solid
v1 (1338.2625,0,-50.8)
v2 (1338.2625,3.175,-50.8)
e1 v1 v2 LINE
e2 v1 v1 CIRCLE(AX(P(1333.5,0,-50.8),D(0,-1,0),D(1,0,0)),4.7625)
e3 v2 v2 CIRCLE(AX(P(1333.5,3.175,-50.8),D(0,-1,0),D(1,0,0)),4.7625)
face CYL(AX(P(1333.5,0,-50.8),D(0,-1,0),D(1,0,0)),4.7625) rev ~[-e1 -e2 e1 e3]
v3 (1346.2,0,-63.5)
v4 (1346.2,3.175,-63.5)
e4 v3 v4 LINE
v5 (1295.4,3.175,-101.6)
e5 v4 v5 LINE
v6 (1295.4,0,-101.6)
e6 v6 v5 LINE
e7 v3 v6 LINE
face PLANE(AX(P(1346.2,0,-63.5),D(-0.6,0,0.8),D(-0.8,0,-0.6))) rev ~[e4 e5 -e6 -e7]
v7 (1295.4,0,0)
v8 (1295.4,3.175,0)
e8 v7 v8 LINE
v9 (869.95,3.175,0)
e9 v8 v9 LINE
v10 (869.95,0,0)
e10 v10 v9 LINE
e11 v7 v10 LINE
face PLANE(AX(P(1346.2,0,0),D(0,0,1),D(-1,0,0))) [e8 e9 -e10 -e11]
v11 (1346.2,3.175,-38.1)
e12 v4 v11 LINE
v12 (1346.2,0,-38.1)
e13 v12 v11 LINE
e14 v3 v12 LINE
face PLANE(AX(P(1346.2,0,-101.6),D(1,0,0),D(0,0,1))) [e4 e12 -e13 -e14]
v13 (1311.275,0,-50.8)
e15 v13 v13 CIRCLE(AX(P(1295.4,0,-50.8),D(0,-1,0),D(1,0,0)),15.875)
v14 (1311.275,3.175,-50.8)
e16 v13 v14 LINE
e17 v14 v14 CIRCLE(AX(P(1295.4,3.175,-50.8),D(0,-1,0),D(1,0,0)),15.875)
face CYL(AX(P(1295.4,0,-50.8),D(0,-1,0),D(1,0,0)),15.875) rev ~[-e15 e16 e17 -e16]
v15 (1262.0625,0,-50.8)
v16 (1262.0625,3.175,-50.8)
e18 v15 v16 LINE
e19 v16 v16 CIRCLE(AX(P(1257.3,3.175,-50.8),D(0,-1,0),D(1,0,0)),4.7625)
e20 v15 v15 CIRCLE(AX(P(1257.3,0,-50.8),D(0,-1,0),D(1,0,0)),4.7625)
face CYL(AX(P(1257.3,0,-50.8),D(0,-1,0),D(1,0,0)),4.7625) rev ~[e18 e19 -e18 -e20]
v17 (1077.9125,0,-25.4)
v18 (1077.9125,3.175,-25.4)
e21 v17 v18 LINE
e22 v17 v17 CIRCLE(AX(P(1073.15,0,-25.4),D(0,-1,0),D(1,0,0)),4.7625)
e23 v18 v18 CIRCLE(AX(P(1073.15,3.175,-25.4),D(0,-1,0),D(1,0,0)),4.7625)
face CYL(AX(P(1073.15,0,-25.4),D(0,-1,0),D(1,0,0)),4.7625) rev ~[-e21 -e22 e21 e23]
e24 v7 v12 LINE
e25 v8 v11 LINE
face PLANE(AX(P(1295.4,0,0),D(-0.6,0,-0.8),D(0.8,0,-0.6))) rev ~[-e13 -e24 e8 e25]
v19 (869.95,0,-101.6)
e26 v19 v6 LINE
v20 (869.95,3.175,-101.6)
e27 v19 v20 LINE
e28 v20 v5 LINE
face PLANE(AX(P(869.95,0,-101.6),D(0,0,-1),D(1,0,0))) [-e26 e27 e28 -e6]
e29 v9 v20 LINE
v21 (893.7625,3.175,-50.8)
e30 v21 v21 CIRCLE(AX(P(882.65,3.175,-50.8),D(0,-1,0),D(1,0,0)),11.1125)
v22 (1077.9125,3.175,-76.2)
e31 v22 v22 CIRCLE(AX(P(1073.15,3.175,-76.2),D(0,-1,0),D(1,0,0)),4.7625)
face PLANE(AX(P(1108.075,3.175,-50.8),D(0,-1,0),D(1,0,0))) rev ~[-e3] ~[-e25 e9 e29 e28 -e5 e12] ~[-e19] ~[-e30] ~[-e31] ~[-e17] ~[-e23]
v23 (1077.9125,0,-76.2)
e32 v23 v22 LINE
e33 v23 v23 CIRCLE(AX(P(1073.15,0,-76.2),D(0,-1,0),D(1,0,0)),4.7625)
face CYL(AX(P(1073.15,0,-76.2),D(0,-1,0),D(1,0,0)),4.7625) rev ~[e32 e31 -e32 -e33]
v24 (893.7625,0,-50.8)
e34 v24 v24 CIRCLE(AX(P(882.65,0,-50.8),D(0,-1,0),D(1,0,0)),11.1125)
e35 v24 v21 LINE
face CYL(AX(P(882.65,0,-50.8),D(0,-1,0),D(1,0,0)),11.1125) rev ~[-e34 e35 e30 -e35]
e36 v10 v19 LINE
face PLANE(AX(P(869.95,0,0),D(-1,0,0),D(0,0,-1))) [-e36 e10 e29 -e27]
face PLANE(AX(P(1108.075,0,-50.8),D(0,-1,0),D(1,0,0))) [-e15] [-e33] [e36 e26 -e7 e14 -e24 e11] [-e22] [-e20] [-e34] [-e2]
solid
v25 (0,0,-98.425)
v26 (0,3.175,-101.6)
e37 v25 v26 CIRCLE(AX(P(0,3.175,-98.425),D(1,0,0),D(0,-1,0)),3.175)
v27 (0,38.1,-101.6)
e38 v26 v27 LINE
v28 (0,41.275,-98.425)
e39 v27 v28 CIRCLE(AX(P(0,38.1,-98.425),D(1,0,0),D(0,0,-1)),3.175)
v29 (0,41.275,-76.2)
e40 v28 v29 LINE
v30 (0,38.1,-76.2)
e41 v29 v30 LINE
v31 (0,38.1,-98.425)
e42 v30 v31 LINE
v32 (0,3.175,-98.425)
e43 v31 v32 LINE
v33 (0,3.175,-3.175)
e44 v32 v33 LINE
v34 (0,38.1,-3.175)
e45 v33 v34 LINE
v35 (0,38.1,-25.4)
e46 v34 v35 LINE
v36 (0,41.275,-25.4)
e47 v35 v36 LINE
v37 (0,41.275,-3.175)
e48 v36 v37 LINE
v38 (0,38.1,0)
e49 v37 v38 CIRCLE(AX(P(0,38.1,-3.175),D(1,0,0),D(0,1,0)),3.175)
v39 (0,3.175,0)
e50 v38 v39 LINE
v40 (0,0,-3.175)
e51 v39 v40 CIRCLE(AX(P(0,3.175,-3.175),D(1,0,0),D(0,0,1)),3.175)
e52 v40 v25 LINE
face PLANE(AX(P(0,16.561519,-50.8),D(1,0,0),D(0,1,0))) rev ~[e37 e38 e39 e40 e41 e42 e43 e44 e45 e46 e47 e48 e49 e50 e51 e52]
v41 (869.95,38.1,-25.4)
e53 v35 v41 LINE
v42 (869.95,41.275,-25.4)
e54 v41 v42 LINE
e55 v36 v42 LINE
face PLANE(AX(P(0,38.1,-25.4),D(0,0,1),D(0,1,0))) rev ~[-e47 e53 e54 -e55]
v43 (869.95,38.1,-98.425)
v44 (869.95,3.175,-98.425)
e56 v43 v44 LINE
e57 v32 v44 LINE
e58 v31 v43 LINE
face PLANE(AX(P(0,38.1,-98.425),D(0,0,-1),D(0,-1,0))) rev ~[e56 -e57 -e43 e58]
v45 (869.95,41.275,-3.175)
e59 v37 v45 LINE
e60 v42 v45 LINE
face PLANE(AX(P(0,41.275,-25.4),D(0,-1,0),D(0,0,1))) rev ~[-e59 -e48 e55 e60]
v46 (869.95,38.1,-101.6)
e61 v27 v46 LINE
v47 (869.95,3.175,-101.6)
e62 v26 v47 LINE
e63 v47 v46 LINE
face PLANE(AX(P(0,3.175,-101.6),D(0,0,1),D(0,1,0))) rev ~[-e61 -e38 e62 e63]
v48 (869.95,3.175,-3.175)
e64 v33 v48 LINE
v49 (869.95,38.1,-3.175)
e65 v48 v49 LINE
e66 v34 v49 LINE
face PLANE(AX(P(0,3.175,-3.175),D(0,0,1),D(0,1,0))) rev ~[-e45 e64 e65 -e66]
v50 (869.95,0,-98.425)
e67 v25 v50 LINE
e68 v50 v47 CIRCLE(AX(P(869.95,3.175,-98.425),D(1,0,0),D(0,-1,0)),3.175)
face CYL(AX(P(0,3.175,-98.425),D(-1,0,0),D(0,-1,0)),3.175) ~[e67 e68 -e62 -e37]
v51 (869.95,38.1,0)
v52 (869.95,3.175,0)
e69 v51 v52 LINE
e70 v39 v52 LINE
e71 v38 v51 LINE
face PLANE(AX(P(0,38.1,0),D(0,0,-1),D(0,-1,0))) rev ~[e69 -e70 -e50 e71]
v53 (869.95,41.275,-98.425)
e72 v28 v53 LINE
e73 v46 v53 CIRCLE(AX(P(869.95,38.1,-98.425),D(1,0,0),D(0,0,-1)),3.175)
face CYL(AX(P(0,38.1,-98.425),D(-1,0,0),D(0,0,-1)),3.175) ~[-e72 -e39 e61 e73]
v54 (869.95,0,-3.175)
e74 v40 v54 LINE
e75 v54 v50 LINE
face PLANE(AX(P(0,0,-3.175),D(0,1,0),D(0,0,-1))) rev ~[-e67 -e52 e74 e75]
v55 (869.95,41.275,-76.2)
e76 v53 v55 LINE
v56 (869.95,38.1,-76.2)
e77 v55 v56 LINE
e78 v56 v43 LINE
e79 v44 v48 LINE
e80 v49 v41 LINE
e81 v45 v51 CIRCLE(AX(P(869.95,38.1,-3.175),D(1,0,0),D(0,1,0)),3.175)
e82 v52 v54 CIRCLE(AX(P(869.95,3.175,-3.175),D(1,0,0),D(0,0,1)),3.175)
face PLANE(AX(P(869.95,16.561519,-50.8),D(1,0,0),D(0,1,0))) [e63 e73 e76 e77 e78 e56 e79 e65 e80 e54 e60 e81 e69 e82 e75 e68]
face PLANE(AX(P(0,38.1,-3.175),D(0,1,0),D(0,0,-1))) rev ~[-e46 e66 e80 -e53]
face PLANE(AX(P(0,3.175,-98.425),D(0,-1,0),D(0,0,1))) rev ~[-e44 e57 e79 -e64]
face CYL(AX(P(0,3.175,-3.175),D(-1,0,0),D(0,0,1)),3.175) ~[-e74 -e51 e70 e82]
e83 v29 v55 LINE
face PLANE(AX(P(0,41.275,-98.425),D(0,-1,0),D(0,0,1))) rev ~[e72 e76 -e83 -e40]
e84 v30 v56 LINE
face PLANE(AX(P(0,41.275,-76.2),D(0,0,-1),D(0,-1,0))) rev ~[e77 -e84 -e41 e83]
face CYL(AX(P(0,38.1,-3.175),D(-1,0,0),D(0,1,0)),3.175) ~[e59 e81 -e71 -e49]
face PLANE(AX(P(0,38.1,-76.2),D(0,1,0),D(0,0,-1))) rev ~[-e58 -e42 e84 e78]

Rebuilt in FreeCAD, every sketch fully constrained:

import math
import FreeCAD as App
import Part
import Sketcher
from FreeCAD import Vector
Q = App.Units.Quantity

doc = App.newDocument("Part")
body = doc.addObject("PartDesign::Body", "Body")

sketch1 = body.newObject("Sketcher::SketchObject", "Sketch")
sketch1.AttachmentSupport = (doc.getObject("YZ_Plane"), [""])
sketch1.MapMode = "FlatFace"
sketch1.addGeometry(Part.LineSegment(Vector(38.1, 0, 0), Vector(3.2, 0, 0)), False)
sketch1.addGeometry(Part.ArcOfCircle(Part.Circle(Vector(3.2, -3.2, 0), Vector(0, 0, 1), 3.2), math.radians(90), math.radians(180)), False)
sketch1.addGeometry(Part.LineSegment(Vector(0, -3.2, 0), Vector(0, -98.4, 0)), False)
sketch1.addGeometry(Part.ArcOfCircle(Part.Circle(Vector(3.2, -98.4, 0), Vector(0, 0, 1), 3.2), math.radians(180), math.radians(270)), False)
sketch1.addGeometry(Part.LineSegment(Vector(3.2, -101.6, 0), Vector(38.1, -101.6, 0)), False)
sketch1.addGeometry(Part.ArcOfCircle(Part.Circle(Vector(38.1, -98.4, 0), Vector(0, 0, 1), 3.2), math.radians(-90), math.radians(0)), False)
sketch1.addGeometry(Part.LineSegment(Vector(41.3, -98.4, 0), Vector(41.3, -76.2, 0)), False)
sketch1.addGeometry(Part.LineSegment(Vector(41.3, -76.2, 0), Vector(38.1, -76.2, 0)), False)
sketch1.addGeometry(Part.LineSegment(Vector(38.1, -76.2, 0), Vector(38.1, -98.4, 0)), False)
sketch1.addGeometry(Part.LineSegment(Vector(38.1, -98.4, 0), Vector(3.2, -98.4, 0)), False)
sketch1.addGeometry(Part.LineSegment(Vector(3.2, -98.4, 0), Vector(3.2, -3.2, 0)), False)
sketch1.addGeometry(Part.LineSegment(Vector(3.2, -3.2, 0), Vector(38.1, -3.2, 0)), False)
sketch1.addGeometry(Part.LineSegment(Vector(38.1, -3.2, 0), Vector(38.1, -25.4, 0)), False)
sketch1.addGeometry(Part.LineSegment(Vector(38.1, -25.4, 0), Vector(41.3, -25.4, 0)), False)
sketch1.addGeometry(Part.LineSegment(Vector(41.3, -25.4, 0), Vector(41.3, -3.2, 0)), False)
sketch1.addGeometry(Part.ArcOfCircle(Part.Circle(Vector(38.1, -3.2, 0), Vector(0, 0, 1), 3.2), math.radians(0), math.radians(90)), False)
sketch1.addConstraint(Sketcher.Constraint("Tangent", 0, 2, 1, 1))
sketch1.addConstraint(Sketcher.Constraint("Tangent", 1, 2, 2, 1))
sketch1.addConstraint(Sketcher.Constraint("Tangent", 2, 2, 3, 1))
sketch1.addConstraint(Sketcher.Constraint("Tangent", 3, 2, 4, 1))
sketch1.addConstraint(Sketcher.Constraint("Tangent", 4, 2, 5, 1))
sketch1.addConstraint(Sketcher.Constraint("Tangent", 5, 2, 6, 1))
sketch1.addConstraint(Sketcher.Constraint("Coincident", 6, 2, 7, 1))
sketch1.addConstraint(Sketcher.Constraint("Coincident", 7, 2, 8, 1))
sketch1.addConstraint(Sketcher.Constraint("Coincident", 8, 2, 9, 1))
sketch1.addConstraint(Sketcher.Constraint("Coincident", 9, 2, 10, 1))
sketch1.addConstraint(Sketcher.Constraint("Coincident", 10, 2, 11, 1))
sketch1.addConstraint(Sketcher.Constraint("Coincident", 11, 2, 12, 1))
sketch1.addConstraint(Sketcher.Constraint("Coincident", 12, 2, 13, 1))
sketch1.addConstraint(Sketcher.Constraint("Coincident", 13, 2, 14, 1))
sketch1.addConstraint(Sketcher.Constraint("Tangent", 14, 2, 15, 1))
sketch1.addConstraint(Sketcher.Constraint("Tangent", 15, 2, 0, 1))
sketch1.addConstraint(Sketcher.Constraint("Horizontal", 0))
sketch1.addConstraint(Sketcher.Constraint("Vertical", 2))
sketch1.addConstraint(Sketcher.Constraint("Horizontal", 4))
sketch1.addConstraint(Sketcher.Constraint("Vertical", 6))
sketch1.addConstraint(Sketcher.Constraint("Horizontal", 7))
sketch1.addConstraint(Sketcher.Constraint("Vertical", 8))
sketch1.addConstraint(Sketcher.Constraint("Horizontal", 9))
sketch1.addConstraint(Sketcher.Constraint("Vertical", 10))
sketch1.addConstraint(Sketcher.Constraint("Horizontal", 11))
sketch1.addConstraint(Sketcher.Constraint("Vertical", 12))
sketch1.addConstraint(Sketcher.Constraint("Horizontal", 13))
sketch1.addConstraint(Sketcher.Constraint("Vertical", 14))
sketch1.addConstraint(Sketcher.Constraint("Coincident", 8, 2, 5, 3))
sketch1.addConstraint(Sketcher.Constraint("Coincident", 9, 2, 3, 3))
sketch1.addConstraint(Sketcher.Constraint("Coincident", 10, 2, 1, 3))
sketch1.addConstraint(Sketcher.Constraint("Coincident", 11, 2, 15, 3))
sketch1.addConstraint(Sketcher.Constraint("PointOnObject", 0, 2, -1))
sketch1.addConstraint(Sketcher.Constraint("PointOnObject", 1, 2, -2))
sketch1.addConstraint(Sketcher.Constraint("Vertical", 5, 3, 15, 3))
sketch1.addConstraint(Sketcher.Constraint("Equal", 8, 12))
sketch1.addConstraint(Sketcher.Constraint("DistanceY", 3, 2, -1, 1, Q("4 in")))
sketch1.addConstraint(Sketcher.Constraint("DistanceY", 6, 2, -1, 1, Q("3 in")))
sketch1.addConstraint(Sketcher.Constraint("Radius", 1, Q("0.125 in")))
sketch1.addConstraint(Sketcher.Constraint("DistanceX", -1, 1, 5, 3, Q("1.5 in")))
pad1 = body.newObject("PartDesign::Pad", "Pad")
pad1.Profile = sketch1
pad1.Length = Q("34.25 in")
body2 = doc.addObject("PartDesign::Body", "Body001")

sketch2 = body2.newObject("Sketcher::SketchObject", "Sketch001")
sketch2.AttachmentSupport = (doc.getObject("XZ_Plane001"), [""])
sketch2.MapMode = "FlatFace"
sketch2.addGeometry(Part.LineSegment(Vector(1346.2, 0, 0), Vector(870, 0, 0)), False)
sketch2.addGeometry(Part.LineSegment(Vector(870, 0, 0), Vector(870, -101.6, 0)), False)
sketch2.addGeometry(Part.LineSegment(Vector(870, -101.6, 0), Vector(1346.2, -101.6, 0)), False)
sketch2.addGeometry(Part.LineSegment(Vector(1346.2, -101.6, 0), Vector(1346.2, 0, 0)), False)
sketch2.addGeometry(Part.Circle(Vector(1073.2, -76.2, 0), Vector(0, 0, 1), 4.8), False)
sketch2.addGeometry(Part.Circle(Vector(882.6, -50.8, 0), Vector(0, 0, 1), 11.1), False)
sketch2.addGeometry(Part.Circle(Vector(1073.2, -25.4, 0), Vector(0, 0, 1), 4.8), False)
sketch2.addGeometry(Part.Circle(Vector(1257.3, -50.8, 0), Vector(0, 0, 1), 4.8), False)
sketch2.addGeometry(Part.Circle(Vector(1295.4, -50.8, 0), Vector(0, 0, 1), 15.9), False)
sketch2.addGeometry(Part.Circle(Vector(1333.5, -50.8, 0), Vector(0, 0, 1), 4.8), False)
sketch2.addConstraint(Sketcher.Constraint("Coincident", 0, 2, 1, 1))
sketch2.addConstraint(Sketcher.Constraint("Coincident", 1, 2, 2, 1))
sketch2.addConstraint(Sketcher.Constraint("Coincident", 2, 2, 3, 1))
sketch2.addConstraint(Sketcher.Constraint("Coincident", 3, 2, 0, 1))
sketch2.addConstraint(Sketcher.Constraint("Horizontal", 0))
sketch2.addConstraint(Sketcher.Constraint("Vertical", 1))
sketch2.addConstraint(Sketcher.Constraint("Horizontal", 2))
sketch2.addConstraint(Sketcher.Constraint("Vertical", 3))
sketch2.addConstraint(Sketcher.Constraint("Equal", 4, 6))
sketch2.addConstraint(Sketcher.Constraint("Equal", 6, 7))
sketch2.addConstraint(Sketcher.Constraint("Equal", 7, 9))
sketch2.addConstraint(Sketcher.Constraint("PointOnObject", 0, 2, -1))
sketch2.addConstraint(Sketcher.Constraint("Horizontal", 5, 3, 7, 3))
sketch2.addConstraint(Sketcher.Constraint("Horizontal", 7, 3, 8, 3))
sketch2.addConstraint(Sketcher.Constraint("Horizontal", 8, 3, 9, 3))
sketch2.addConstraint(Sketcher.Constraint("Vertical", 4, 3, 6, 3))
sketch2.addConstraint(Sketcher.Constraint("Diameter", 8, Q("1.25 in")))
sketch2.addConstraint(Sketcher.Constraint("DistanceY", 1, 2, 1, 1, Q("4 in")))
sketch2.addConstraint(Sketcher.Constraint("Diameter", 4, Q("0.375 in")))
sketch2.addConstraint(Sketcher.Constraint("Diameter", 5, Q("0.875 in")))
sketch2.addConstraint(Sketcher.Constraint("DistanceY", 4, 3, -1, 1, Q("3 in")))
sketch2.addConstraint(Sketcher.Constraint("DistanceY", 5, 3, -1, 1, Q("2 in")))
sketch2.addConstraint(Sketcher.Constraint("DistanceY", 6, 3, -1, 1, Q("1 in")))
sketch2.addConstraint(Sketcher.Constraint("DistanceX", -1, 1, 8, 3, Q("51 in")))
sketch2.addConstraint(Sketcher.Constraint("DistanceX", -1, 1, 2, 2, Q("53 in")))
sketch2.addConstraint(Sketcher.Constraint("DistanceX", 7, 3, 9, 3, Q("3 in")))
sketch2.addConstraint(Sketcher.Constraint("DistanceX", 0, 2, 6, 3, Q("8 in")))
sketch2.addConstraint(Sketcher.Constraint("DistanceX", 0, 2, 0, 1, Q("18.75 in")))
sketch2.addConstraint(Sketcher.Constraint("DistanceX", -1, 1, 7, 3, Q("49.5 in")))
sketch2.addConstraint(Sketcher.Constraint("DistanceX", 5, 3, 4, 3, Q("7.5 in")))
pad2 = body2.newObject("PartDesign::Pad", "Pad001")
pad2.Profile = sketch2
pad2.Length = Q("0.125 in")
pad2.Reversed = True

sketch3 = body2.newObject("Sketcher::SketchObject", "Sketch002")
sketch3.AttachmentSupport = (doc.getObject("XZ_Plane001"), [""])
sketch3.MapMode = "FlatFace"
sketch3.addGeometry(Part.LineSegment(Vector(1295, 0, 0), Vector(1346, -38, 0)), False)
sketch3.addGeometry(Part.LineSegment(Vector(1346, -38, 0), Vector(1346, 0, 0)), False)
sketch3.addGeometry(Part.LineSegment(Vector(1346, 0, 0), Vector(1295, 0, 0)), False)
sketch3.addGeometry(Part.LineSegment(Vector(1346, -102, 0), Vector(1346, -64, 0)), False)
sketch3.addGeometry(Part.LineSegment(Vector(1346, -64, 0), Vector(1295, -102, 0)), False)
sketch3.addGeometry(Part.LineSegment(Vector(1295, -102, 0), Vector(1346, -102, 0)), False)
sketch3.addConstraint(Sketcher.Constraint("Coincident", 0, 2, 1, 1))
sketch3.addConstraint(Sketcher.Constraint("Coincident", 1, 2, 2, 1))
sketch3.addConstraint(Sketcher.Constraint("Coincident", 2, 2, 0, 1))
sketch3.addConstraint(Sketcher.Constraint("Coincident", 3, 2, 4, 1))
sketch3.addConstraint(Sketcher.Constraint("Coincident", 4, 2, 5, 1))
sketch3.addConstraint(Sketcher.Constraint("Coincident", 5, 2, 3, 1))
sketch3.addConstraint(Sketcher.Constraint("Vertical", 1))
sketch3.addConstraint(Sketcher.Constraint("Horizontal", 2))
sketch3.addConstraint(Sketcher.Constraint("Vertical", 3))
sketch3.addConstraint(Sketcher.Constraint("Horizontal", 5))
sketch3.addConstraint(Sketcher.Constraint("PointOnObject", 1, 2, -1))
sketch3.addConstraint(Sketcher.Constraint("Vertical", 1, 2, 3, 2))
sketch3.addConstraint(Sketcher.Constraint("Vertical", 2, 2, 4, 2))
sketch3.addConstraint(Sketcher.Constraint("Equal", 1, 3))
sketch3.addConstraint(Sketcher.Constraint("DistanceX", 2, 2, 2, 1, Q("2 in")))
sketch3.addConstraint(Sketcher.Constraint("DistanceY", 1, 1, 1, 2, Q("1.5 in")))
sketch3.addConstraint(Sketcher.Constraint("DistanceX", -1, 1, 0, 2, Q("53 in")))
sketch3.addConstraint(Sketcher.Constraint("DistanceY", 4, 2, -1, 1, Q("4 in")))
pocket1 = body2.newObject("PartDesign::Pocket", "Pocket")
pocket1.Profile = sketch3
pocket1.Type = "ThroughAll"

doc.recompute()
